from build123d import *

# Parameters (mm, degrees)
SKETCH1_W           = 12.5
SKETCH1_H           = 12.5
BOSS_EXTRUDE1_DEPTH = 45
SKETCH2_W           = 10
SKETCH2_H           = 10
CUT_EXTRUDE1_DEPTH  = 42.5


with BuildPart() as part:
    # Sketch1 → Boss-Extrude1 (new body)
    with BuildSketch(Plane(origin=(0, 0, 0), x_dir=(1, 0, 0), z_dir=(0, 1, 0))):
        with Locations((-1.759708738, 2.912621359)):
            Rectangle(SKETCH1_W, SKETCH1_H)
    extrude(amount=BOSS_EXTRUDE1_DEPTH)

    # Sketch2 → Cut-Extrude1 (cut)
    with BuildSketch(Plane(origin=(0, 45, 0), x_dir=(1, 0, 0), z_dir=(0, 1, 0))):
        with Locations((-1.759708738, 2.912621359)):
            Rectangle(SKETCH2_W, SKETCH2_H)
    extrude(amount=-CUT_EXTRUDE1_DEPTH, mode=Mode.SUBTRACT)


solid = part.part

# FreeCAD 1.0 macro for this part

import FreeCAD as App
import Part
import Sketcher
from FreeCAD import Vector
Q = App.Units.Quantity

doc = App.newDocument("Part")
body = doc.addObject("PartDesign::Body", "Body")

sketch1 = body.newObject("Sketcher::SketchObject", "Sketch")
sketch1.AttachmentSupport = (doc.getObject("XZ_Plane"), [""])
sketch1.MapMode = "FlatFace"
sketch1.addGeometry([
    Part.LineSegment(Vector(-8.009709, -9.162621, 0), Vector(-8.009709, 3.337379, 0)),
    Part.LineSegment(Vector(-8.009709, 3.337379, 0), Vector(4.490291, 3.337379, 0)),
    Part.LineSegment(Vector(4.490291, 3.337379, 0), Vector(4.490291, -9.162621, 0)),
    Part.LineSegment(Vector(4.490291, -9.162621, 0), Vector(-8.009709, -9.162621, 0)),
], False)
sketch1.addConstraint([
    Sketcher.Constraint("Coincident", 0, 2, 1, 1),
    Sketcher.Constraint("Coincident", 1, 2, 2, 1),
    Sketcher.Constraint("Coincident", 2, 2, 3, 1),
    Sketcher.Constraint("Coincident", 3, 2, 0, 1),
    Sketcher.Constraint("Vertical", 0),
    Sketcher.Constraint("Horizontal", 1),
    Sketcher.Constraint("Vertical", 2),
    Sketcher.Constraint("Horizontal", 3),
    Sketcher.Constraint("Equal", 3, 0),
    Sketcher.Constraint("DistanceX", 1, 1, 1, 2, Q("12.5 mm")),
    Sketcher.Constraint("DistanceX", 0, 2, -1, 1, Q("8.009709 mm")),
    Sketcher.Constraint("DistanceY", -1, 1, 0, 2, Q("3.337379 mm")),
])
pad1 = body.newObject("PartDesign::Pad", "Pad")
pad1.Profile = sketch1
pad1.Length = 45
pad1.Reversed = True

sketch2 = body.newObject("Sketcher::SketchObject", "Sketch001")
sketch2.AttachmentSupport = (doc.getObject("XZ_Plane"), [""])
sketch2.MapMode = "FlatFace"
sketch2.AttachmentOffset = App.Placement(Vector(0, 0, -45), App.Rotation())
sketch2.addGeometry([
    Part.LineSegment(Vector(-6.759709, -7.912621, 0), Vector(-6.759709, 2.087379, 0)),
    Part.LineSegment(Vector(-6.759709, 2.087379, 0), Vector(3.240291, 2.087379, 0)),
    Part.LineSegment(Vector(3.240291, 2.087379, 0), Vector(3.240291, -7.912621, 0)),
    Part.LineSegment(Vector(3.240291, -7.912621, 0), Vector(-6.759709, -7.912621, 0)),
], False)
sketch2.addConstraint([
    Sketcher.Constraint("Coincident", 0, 2, 1, 1),
    Sketcher.Constraint("Coincident", 1, 2, 2, 1),
    Sketcher.Constraint("Coincident", 2, 2, 3, 1),
    Sketcher.Constraint("Coincident", 3, 2, 0, 1),
    Sketcher.Constraint("Vertical", 0),
    Sketcher.Constraint("Horizontal", 1),
    Sketcher.Constraint("Vertical", 2),
    Sketcher.Constraint("Horizontal", 3),
    Sketcher.Constraint("Equal", 3, 0),
    Sketcher.Constraint("DistanceX", 1, 1, 1, 2, Q("10 mm")),
    Sketcher.Constraint("DistanceX", 0, 2, -1, 1, Q("6.759709 mm")),
    Sketcher.Constraint("DistanceY", -1, 1, 0, 2, Q("2.087379 mm")),
])
pocket1 = body.newObject("PartDesign::Pocket", "Pocket")
pocket1.Profile = sketch2
pocket1.Length = 42.5
pocket1.Reversed = True

doc.recompute()
